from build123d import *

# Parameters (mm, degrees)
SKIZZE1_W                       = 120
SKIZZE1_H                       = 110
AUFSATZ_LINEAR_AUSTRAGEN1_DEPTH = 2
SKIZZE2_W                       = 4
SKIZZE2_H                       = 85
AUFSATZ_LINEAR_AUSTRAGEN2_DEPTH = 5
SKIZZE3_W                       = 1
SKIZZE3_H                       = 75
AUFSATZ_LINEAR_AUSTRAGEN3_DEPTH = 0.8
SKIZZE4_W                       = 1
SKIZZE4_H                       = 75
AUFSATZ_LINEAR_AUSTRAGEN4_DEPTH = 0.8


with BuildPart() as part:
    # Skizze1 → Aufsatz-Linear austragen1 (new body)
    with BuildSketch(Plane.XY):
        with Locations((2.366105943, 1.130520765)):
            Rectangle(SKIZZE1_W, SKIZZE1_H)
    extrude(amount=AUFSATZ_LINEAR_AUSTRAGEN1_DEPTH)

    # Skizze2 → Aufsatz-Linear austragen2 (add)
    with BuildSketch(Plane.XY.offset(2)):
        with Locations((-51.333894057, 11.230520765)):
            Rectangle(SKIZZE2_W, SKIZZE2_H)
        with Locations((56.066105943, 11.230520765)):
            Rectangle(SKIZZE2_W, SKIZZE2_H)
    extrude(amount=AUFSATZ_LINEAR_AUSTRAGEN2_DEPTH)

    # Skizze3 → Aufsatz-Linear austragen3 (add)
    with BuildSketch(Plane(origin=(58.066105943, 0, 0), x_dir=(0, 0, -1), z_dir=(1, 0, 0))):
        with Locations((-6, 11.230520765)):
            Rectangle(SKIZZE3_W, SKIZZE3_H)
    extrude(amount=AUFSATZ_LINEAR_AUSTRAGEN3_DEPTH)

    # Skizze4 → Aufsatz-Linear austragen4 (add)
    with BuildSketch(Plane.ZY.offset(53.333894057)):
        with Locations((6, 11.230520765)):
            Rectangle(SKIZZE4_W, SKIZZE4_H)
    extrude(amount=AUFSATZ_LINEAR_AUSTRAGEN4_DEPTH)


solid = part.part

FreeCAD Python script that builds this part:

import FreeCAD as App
import Part
import Sketcher


def add_polygon(sketch, points):
    """Adds a closed chain of lines whose ends are joined by coincident constraints."""
    first, n = sketch.GeometryCount, len(points)
    for a, b in zip(points, points[1:] + points[:1]):
        sketch.addGeometry(Part.LineSegment(App.Vector(*a, 0), App.Vector(*b, 0)), False)
    for i in range(n):
        sketch.addConstraint(Sketcher.Constraint("Coincident", first + i, 2, first + (i + 1) % n, 1))

doc = App.newDocument("Part")
body = doc.addObject("PartDesign::Body", "Body")

# Sketch on XY plane
sketch1 = doc.addObject("Sketcher::SketchObject", "Sketch")
body.addObject(sketch1)
sketch1.AttachmentSupport = (doc.XY_Plane, [""])
sketch1.MapMode = "FlatFace"
add_polygon(sketch1, [(-57.633894, 56.130521), (-57.633894, -53.869479), (62.366106, -53.869479), (62.366106, 56.130521)])  # lines 0-3
sketch1.addConstraint([
    Sketcher.Constraint("Vertical", 0),
    Sketcher.Constraint("Horizontal", 1),
    Sketcher.Constraint("Vertical", 2),
    Sketcher.Constraint("Horizontal", 3),
    Sketcher.Constraint("DistanceX", 1, 1, 1, 2, 120.0),
    Sketcher.Constraint("DistanceY", 0, 2, 0, 1, 110.0),
    Sketcher.Constraint("DistanceY", 0, 2, -1, 1, 53.869479),
    Sketcher.Constraint("DistanceX", 0, 2, -1, 1, 57.633894),
])
pad1 = doc.addObject("PartDesign::Pad", "Pad")
body.addObject(pad1)
pad1.Profile = sketch1
pad1.Length = 2

# Sketch on XY plane
sketch2 = doc.addObject("Sketcher::SketchObject", "Sketch001")
body.addObject(sketch2)
sketch2.AttachmentSupport = (doc.XY_Plane, [""])
sketch2.MapMode = "FlatFace"
sketch2.AttachmentOffset = App.Placement(App.Vector(0, 0, 2), App.Rotation())
add_polygon(sketch2, [(-53.333894, 53.730521), (-53.333894, -31.269479), (-49.333894, -31.269479), (-49.333894, 53.730521)])  # lines 0-3
add_polygon(sketch2, [(54.066106, 53.730521), (54.066106, -31.269479), (58.066106, -31.269479), (58.066106, 53.730521)])  # lines 4-7
sketch2.addConstraint([
    Sketcher.Constraint("Vertical", 0),
    Sketcher.Constraint("Horizontal", 1),
    Sketcher.Constraint("Vertical", 2),
    Sketcher.Constraint("Horizontal", 3),
    Sketcher.Constraint("Vertical", 4),
    Sketcher.Constraint("Horizontal", 5),
    Sketcher.Constraint("Vertical", 6),
    Sketcher.Constraint("Horizontal", 7),
    Sketcher.Constraint("Horizontal", 1, 2, 4, 2),
    Sketcher.Constraint("Horizontal", 3, 2, 6, 2),
    Sketcher.Constraint("Equal", 3, 5),
    Sketcher.Constraint("DistanceX", 1, 1, 1, 2, 4.0),
    Sketcher.Constraint("DistanceY", 0, 2, 0, 1, 85.0),
    Sketcher.Constraint("DistanceX", 1, 2, 4, 2, 103.4),
    Sketcher.Constraint("DistanceY", 0, 2, -1, 1, 31.269479),
    Sketcher.Constraint("DistanceX", 0, 2, -1, 1, 53.333894),
])
pad2 = doc.addObject("PartDesign::Pad", "Pad001")
body.addObject(pad2)
pad2.Profile = sketch2
pad2.Length = 5

# Sketch on YZ plane
sketch3 = doc.addObject("Sketcher::SketchObject", "Sketch002")
body.addObject(sketch3)
sketch3.AttachmentSupport = (doc.YZ_Plane, [""])
sketch3.MapMode = "FlatFace"
sketch3.AttachmentOffset = App.Placement(App.Vector(0, 0, 58.066106), App.Rotation())
add_polygon(sketch3, [(48.730521, 6.5), (-26.269479, 6.5), (-26.269479, 5.5), (48.730521, 5.5)])  # lines 0-3
sketch3.addConstraint([
    Sketcher.Constraint("Horizontal", 0),
    Sketcher.Constraint("Vertical", 1),
    Sketcher.Constraint("Horizontal", 2),
    Sketcher.Constraint("Vertical", 3),
    Sketcher.Constraint("DistanceX", 0, 2, 0, 1, 75.0),
    Sketcher.Constraint("DistanceY", 1, 2, 1, 1, 1.0),
    Sketcher.Constraint("DistanceY", -1, 1, 0, 2, 6.5),
    Sketcher.Constraint("DistanceX", 0, 2, -1, 1, 26.269479),
])
pad3 = doc.addObject("PartDesign::Pad", "Pad002")
body.addObject(pad3)
pad3.Profile = sketch3
pad3.Length = 0.8

# Sketch on YZ plane
sketch4 = doc.addObject("Sketcher::SketchObject", "Sketch003")
body.addObject(sketch4)
sketch4.AttachmentSupport = (doc.YZ_Plane, [""])
sketch4.MapMode = "FlatFace"
sketch4.AttachmentOffset = App.Placement(App.Vector(0, 0, -53.333894), App.Rotation())
add_polygon(sketch4, [(48.730521, 5.5), (-26.269479, 5.5), (-26.269479, 6.5), (48.730521, 6.5)])  # lines 0-3
sketch4.addConstraint([
    Sketcher.Constraint("Horizontal", 0),
    Sketcher.Constraint("Vertical", 1),
    Sketcher.Constraint("Horizontal", 2),
    Sketcher.Constraint("Vertical", 3),
    Sketcher.Constraint("DistanceX", 0, 2, 0, 1, 75.0),
    Sketcher.Constraint("DistanceY", 1, 1, 1, 2, 1.0),
    Sketcher.Constraint("DistanceY", -1, 1, 0, 2, 5.5),
    Sketcher.Constraint("DistanceX", 0, 2, -1, 1, 26.269479),
])
pad4 = doc.addObject("PartDesign::Pad", "Pad003")
body.addObject(pad4)
pad4.Profile = sketch4
pad4.Length = 0.8
pad4.Reversed = True

doc.recompute()
